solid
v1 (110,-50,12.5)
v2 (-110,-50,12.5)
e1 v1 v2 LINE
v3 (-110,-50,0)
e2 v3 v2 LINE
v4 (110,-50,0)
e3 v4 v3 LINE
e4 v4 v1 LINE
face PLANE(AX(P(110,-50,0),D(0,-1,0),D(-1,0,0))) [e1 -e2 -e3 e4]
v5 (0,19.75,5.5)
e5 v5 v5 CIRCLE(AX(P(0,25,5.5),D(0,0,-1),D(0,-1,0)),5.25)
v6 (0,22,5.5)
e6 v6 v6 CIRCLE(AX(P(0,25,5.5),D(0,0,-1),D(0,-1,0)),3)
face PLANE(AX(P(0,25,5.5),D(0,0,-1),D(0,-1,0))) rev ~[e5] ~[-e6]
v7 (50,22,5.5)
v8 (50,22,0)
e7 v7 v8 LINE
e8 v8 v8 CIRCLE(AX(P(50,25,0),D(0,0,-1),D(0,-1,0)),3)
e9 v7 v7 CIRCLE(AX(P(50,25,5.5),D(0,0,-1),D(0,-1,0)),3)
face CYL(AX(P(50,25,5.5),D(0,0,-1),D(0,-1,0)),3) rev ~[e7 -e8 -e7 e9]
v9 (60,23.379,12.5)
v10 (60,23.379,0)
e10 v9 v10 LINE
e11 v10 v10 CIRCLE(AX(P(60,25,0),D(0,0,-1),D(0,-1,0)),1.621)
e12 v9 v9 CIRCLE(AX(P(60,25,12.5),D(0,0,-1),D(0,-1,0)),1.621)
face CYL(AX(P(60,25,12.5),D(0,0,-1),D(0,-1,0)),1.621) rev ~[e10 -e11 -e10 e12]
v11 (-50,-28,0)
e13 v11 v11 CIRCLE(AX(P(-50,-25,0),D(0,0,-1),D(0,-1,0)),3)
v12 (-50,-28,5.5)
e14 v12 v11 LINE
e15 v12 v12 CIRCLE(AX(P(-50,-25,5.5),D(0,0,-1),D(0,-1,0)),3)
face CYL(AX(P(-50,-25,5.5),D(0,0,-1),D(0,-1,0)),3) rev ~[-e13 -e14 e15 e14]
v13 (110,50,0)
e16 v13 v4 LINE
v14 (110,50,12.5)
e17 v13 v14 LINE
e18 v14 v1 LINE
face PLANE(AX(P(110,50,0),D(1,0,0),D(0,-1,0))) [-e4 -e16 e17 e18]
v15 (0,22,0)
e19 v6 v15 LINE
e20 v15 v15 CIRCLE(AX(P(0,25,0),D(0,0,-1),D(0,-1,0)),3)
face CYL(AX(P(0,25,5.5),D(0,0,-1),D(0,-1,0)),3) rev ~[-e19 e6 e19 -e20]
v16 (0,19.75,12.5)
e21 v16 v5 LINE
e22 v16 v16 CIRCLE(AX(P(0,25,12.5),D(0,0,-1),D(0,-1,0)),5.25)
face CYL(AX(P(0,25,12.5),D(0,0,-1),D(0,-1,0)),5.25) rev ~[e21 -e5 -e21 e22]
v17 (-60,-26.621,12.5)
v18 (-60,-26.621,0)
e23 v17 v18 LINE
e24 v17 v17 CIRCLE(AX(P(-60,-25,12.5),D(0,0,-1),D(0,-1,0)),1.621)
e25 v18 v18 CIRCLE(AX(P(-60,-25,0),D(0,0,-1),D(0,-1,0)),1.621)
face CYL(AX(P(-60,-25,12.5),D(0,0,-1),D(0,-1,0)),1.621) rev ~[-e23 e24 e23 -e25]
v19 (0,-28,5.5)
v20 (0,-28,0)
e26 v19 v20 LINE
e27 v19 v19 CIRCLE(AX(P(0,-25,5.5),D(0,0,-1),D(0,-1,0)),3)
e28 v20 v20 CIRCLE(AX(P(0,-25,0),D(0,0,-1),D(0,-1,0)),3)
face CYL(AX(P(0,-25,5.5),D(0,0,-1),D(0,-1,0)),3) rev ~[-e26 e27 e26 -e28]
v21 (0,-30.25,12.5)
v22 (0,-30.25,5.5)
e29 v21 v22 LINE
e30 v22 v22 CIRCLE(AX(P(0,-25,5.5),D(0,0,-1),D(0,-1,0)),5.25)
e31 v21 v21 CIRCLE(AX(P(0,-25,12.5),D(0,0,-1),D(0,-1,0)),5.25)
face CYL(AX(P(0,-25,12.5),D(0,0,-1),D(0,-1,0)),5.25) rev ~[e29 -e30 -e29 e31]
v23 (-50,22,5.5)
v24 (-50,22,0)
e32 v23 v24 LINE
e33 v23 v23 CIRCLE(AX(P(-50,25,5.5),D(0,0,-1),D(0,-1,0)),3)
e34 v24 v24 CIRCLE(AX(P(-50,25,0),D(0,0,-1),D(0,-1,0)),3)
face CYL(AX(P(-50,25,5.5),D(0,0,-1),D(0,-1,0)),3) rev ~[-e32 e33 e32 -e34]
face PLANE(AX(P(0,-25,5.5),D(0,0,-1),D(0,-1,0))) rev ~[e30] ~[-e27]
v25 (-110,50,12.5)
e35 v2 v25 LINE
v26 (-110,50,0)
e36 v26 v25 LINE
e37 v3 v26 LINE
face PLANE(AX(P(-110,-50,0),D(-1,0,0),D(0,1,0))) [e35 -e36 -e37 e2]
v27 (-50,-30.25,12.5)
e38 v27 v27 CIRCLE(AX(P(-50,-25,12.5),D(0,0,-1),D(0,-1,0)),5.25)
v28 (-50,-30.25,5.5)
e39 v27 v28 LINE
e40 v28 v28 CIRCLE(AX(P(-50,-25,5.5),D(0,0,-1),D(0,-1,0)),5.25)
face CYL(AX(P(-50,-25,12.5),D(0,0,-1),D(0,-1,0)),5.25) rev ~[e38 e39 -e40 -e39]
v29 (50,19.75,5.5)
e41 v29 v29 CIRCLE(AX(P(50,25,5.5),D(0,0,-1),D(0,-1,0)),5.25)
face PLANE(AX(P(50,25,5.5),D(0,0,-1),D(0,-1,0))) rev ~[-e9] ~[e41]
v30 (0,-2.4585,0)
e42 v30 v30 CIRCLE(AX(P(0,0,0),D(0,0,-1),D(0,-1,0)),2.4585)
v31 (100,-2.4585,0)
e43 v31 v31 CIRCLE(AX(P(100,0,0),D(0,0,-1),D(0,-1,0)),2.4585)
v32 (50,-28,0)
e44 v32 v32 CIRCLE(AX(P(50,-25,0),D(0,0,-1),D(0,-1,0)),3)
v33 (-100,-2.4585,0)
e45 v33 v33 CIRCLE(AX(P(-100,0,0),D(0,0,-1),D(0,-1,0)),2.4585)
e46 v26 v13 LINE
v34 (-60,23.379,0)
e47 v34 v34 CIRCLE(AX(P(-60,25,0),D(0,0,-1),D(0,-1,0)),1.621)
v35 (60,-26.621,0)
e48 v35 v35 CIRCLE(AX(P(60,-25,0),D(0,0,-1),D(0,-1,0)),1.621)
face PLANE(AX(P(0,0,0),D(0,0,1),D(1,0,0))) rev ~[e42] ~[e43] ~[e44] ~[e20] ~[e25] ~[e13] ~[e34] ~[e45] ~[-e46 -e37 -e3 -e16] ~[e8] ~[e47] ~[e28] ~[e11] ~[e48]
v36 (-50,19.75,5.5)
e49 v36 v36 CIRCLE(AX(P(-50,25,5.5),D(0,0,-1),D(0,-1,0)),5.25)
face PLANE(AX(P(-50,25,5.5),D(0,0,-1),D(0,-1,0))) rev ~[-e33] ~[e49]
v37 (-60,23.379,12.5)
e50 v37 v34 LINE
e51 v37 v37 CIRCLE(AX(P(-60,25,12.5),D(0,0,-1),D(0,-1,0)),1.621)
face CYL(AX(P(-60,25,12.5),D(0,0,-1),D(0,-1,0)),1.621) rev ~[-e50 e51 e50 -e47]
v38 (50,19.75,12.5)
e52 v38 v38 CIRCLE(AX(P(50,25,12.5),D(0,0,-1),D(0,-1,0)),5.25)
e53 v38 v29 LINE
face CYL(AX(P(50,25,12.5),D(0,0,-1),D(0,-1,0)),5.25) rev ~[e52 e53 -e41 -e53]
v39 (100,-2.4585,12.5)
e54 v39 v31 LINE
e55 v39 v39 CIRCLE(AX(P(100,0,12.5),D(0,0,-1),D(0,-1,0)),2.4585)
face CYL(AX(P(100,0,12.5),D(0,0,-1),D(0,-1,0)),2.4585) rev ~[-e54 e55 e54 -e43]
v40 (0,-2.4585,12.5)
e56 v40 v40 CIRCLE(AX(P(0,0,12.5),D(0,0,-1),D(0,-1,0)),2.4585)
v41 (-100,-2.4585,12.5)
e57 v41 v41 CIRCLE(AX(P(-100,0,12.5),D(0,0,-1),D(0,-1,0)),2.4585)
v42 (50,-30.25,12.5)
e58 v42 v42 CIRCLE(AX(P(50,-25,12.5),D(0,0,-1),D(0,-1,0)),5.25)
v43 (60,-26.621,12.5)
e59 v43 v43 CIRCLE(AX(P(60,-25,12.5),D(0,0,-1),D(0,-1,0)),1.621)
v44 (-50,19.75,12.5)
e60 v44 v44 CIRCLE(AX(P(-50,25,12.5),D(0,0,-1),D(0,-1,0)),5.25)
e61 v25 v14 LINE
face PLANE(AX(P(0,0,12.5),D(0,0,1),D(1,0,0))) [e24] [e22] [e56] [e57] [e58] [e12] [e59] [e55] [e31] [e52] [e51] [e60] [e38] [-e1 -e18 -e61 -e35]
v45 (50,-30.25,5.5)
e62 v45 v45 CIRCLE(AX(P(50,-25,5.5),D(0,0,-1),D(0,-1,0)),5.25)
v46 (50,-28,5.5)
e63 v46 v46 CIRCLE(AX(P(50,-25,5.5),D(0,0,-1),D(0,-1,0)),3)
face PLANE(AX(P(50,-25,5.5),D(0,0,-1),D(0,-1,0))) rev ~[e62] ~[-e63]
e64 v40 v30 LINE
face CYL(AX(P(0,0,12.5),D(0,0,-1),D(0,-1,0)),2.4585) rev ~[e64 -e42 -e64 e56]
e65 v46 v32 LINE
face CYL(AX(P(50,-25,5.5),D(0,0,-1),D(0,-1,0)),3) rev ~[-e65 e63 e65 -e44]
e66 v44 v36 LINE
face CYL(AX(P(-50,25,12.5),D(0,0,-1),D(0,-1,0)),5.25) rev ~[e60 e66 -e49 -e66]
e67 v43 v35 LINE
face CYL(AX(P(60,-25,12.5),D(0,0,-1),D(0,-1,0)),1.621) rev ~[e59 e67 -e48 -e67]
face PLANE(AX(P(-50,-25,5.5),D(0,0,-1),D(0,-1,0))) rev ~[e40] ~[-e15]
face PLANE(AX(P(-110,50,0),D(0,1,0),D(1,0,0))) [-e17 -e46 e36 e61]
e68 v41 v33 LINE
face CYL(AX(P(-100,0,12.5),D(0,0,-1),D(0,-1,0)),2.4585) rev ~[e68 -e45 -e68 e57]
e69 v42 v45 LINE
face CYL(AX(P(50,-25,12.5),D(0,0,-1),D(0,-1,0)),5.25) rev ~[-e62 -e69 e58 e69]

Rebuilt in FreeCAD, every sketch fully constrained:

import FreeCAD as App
import Part
import Sketcher
Q = App.Units.Quantity


def add_polygon(sketch, points):
    """Adds a closed chain of lines whose ends are joined by coincident constraints."""
    first, n = sketch.GeometryCount, len(points)
    for a, b in zip(points, points[1:] + points[:1]):
        sketch.addGeometry(Part.LineSegment(App.Vector(*a, 0), App.Vector(*b, 0)), False)
    for i in range(n):
        sketch.addConstraint(Sketcher.Constraint("Coincident", first + i, 2, first + (i + 1) % n, 1))

doc = App.newDocument("Part")
body = doc.addObject("PartDesign::Body", "Body")

# Sketch on XY plane
sketch1 = body.newObject("Sketcher::SketchObject", "Sketch")
sketch1.AttachmentSupport = (doc.getObject("XY_Plane"), [""])
sketch1.MapMode = "FlatFace"
add_polygon(sketch1, [(110, 50), (-110, 50), (-110, -50), (110, -50)])  # lines 0-3
sketch1.addConstraint(Sketcher.Constraint("Horizontal", 0))
sketch1.addConstraint(Sketcher.Constraint("Vertical", 1))
sketch1.addConstraint(Sketcher.Constraint("Horizontal", 2))
sketch1.addConstraint(Sketcher.Constraint("Vertical", 3))
sketch1.addConstraint(Sketcher.Constraint("Symmetric", 0, 2, 2, 2, -1, 1))
sketch1.addConstraint(Sketcher.Constraint("DistanceX", 0, 2, 0, 1, Q("220 mm")))
sketch1.addConstraint(Sketcher.Constraint("DistanceY", 1, 2, 1, 1, Q("100 mm")))
pad1 = body.newObject("PartDesign::Pad", "Pad")
pad1.Profile = sketch1
pad1.Length = 12.5

# Sketch on XY plane
sketch2 = body.newObject("Sketcher::SketchObject", "Sketch001")
sketch2.AttachmentSupport = (doc.getObject("XY_Plane"), [""])
sketch2.MapMode = "FlatFace"
sketch2.AttachmentOffset = App.Placement(App.Vector(0, 0, 12.5), App.Rotation())
sketch2.addGeometry(Part.Circle(App.Vector(-60, 25, 0), App.Vector(0, 0, 1), 1.6), False)
sketch2.addGeometry(Part.Circle(App.Vector(-60, -25, 0), App.Vector(0, 0, 1), 1.6), False)
sketch2.addGeometry(Part.Circle(App.Vector(60, -25, 0), App.Vector(0, 0, 1), 1.6), False)
sketch2.addGeometry(Part.Circle(App.Vector(60, 25, 0), App.Vector(0, 0, 1), 1.6), False)
sketch2.addConstraint(Sketcher.Constraint("Equal", 0, 1))
sketch2.addConstraint(Sketcher.Constraint("Equal", 1, 2))
sketch2.addConstraint(Sketcher.Constraint("Equal", 2, 3))
sketch2.addConstraint(Sketcher.Constraint("Symmetric", 0, 3, 2, 3, -1, 1))
sketch2.addConstraint(Sketcher.Constraint("Symmetric", 1, 3, 3, 3, -1, 1))
sketch2.addConstraint(Sketcher.Constraint("Symmetric", 1, 3, 2, 3, -2))
sketch2.addConstraint(Sketcher.Constraint("Diameter", 0, Q("3.242 mm")))
sketch2.addConstraint(Sketcher.Constraint("DistanceX", 0, 3, -1, 1, Q("60 mm")))
sketch2.addConstraint(Sketcher.Constraint("DistanceY", -1, 1, 0, 3, Q("25 mm")))
doc.recompute()
hole = body.newObject("PartDesign::Hole", "Hole")
hole.Profile = sketch2
hole.ThreadType = "None"
hole.Diameter = 3.242
hole.DepthType = "ThroughAll"

# Sketch on XY plane
sketch3 = body.newObject("Sketcher::SketchObject", "Sketch002")
sketch3.AttachmentSupport = (doc.getObject("XY_Plane"), [""])
sketch3.MapMode = "FlatFace"
sketch3.AttachmentOffset = App.Placement(App.Vector(0, 0, 12.5), App.Rotation())
sketch3.addGeometry(Part.Circle(App.Vector(-100, 0, 0), App.Vector(0, 0, 1), 2.5), False)
sketch3.addGeometry(Part.Circle(App.Vector(100, 0, 0), App.Vector(0, 0, 1), 2.5), False)
sketch3.addGeometry(Part.Circle(App.Vector(0, 0, 0), App.Vector(0, 0, 1), 2.5), False)
sketch3.addConstraint(Sketcher.Constraint("Coincident", 2, 3, -1, 1))
sketch3.addConstraint(Sketcher.Constraint("Equal", 0, 1))
sketch3.addConstraint(Sketcher.Constraint("Equal", 1, 2))
sketch3.addConstraint(Sketcher.Constraint("Symmetric", 0, 3, 1, 3, -1, 1))
sketch3.addConstraint(Sketcher.Constraint("PointOnObject", 0, 3, -1))
sketch3.addConstraint(Sketcher.Constraint("Diameter", 0, Q("4.917 mm")))
sketch3.addConstraint(Sketcher.Constraint("DistanceX", 0, 3, -1, 1, Q("100 mm")))
doc.recompute()
hole2 = body.newObject("PartDesign::Hole", "Hole001")
hole2.Profile = sketch3
hole2.ThreadType = "None"
hole2.Diameter = 4.917
hole2.DepthType = "ThroughAll"

# Sketch on XY plane
sketch4 = body.newObject("Sketcher::SketchObject", "Sketch003")
sketch4.AttachmentSupport = (doc.getObject("XY_Plane"), [""])
sketch4.MapMode = "FlatFace"
sketch4.AttachmentOffset = App.Placement(App.Vector(0, 0, 12.5), App.Rotation())
sketch4.addGeometry(Part.Circle(App.Vector(-50, 25, 0), App.Vector(0, 0, 1), 3), False)
sketch4.addGeometry(Part.Circle(App.Vector(0, 25, 0), App.Vector(0, 0, 1), 3), False)
sketch4.addGeometry(Part.Circle(App.Vector(50, 25, 0), App.Vector(0, 0, 1), 3), False)
sketch4.addGeometry(Part.Circle(App.Vector(-50, -25, 0), App.Vector(0, 0, 1), 3), False)
sketch4.addGeometry(Part.Circle(App.Vector(0, -25, 0), App.Vector(0, 0, 1), 3), False)
sketch4.addGeometry(Part.Circle(App.Vector(50, -25, 0), App.Vector(0, 0, 1), 3), False)
sketch4.addConstraint(Sketcher.Constraint("Equal", 0, 1))
sketch4.addConstraint(Sketcher.Constraint("Equal", 1, 2))
sketch4.addConstraint(Sketcher.Constraint("Equal", 2, 3))
sketch4.addConstraint(Sketcher.Constraint("Equal", 3, 4))
sketch4.addConstraint(Sketcher.Constraint("Equal", 4, 5))
sketch4.addConstraint(Sketcher.Constraint("Symmetric", 2, 3, 3, 3, -1, 1))
sketch4.addConstraint(Sketcher.Constraint("Symmetric", 1, 3, 4, 3, -1, 1))
sketch4.addConstraint(Sketcher.Constraint("Symmetric", 0, 3, 5, 3, -1, 1))
sketch4.addConstraint(Sketcher.Constraint("Symmetric", 0, 3, 2, 3, -2))
sketch4.addConstraint(Sketcher.Constraint("PointOnObject", 1, 3, -2))
sketch4.addConstraint(Sketcher.Constraint("Horizontal", 0, 3, 1, 3))
sketch4.addConstraint(Sketcher.Constraint("Diameter", 0, Q("6 mm")))
sketch4.addConstraint(Sketcher.Constraint("DistanceX", 0, 3, -1, 1, Q("50 mm")))
sketch4.addConstraint(Sketcher.Constraint("DistanceY", -1, 1, 0, 3, Q("25 mm")))
doc.recompute()
hole3 = body.newObject("PartDesign::Hole", "Hole002")
hole3.Profile = sketch4
hole3.ThreadType = "None"
hole3.Diameter = 6
hole3.DepthType = "ThroughAll"
hole3.HoleCutType = "Counterbore"
hole3.HoleCutDiameter = 10.5
hole3.HoleCutDepth = 7

doc.recompute()
